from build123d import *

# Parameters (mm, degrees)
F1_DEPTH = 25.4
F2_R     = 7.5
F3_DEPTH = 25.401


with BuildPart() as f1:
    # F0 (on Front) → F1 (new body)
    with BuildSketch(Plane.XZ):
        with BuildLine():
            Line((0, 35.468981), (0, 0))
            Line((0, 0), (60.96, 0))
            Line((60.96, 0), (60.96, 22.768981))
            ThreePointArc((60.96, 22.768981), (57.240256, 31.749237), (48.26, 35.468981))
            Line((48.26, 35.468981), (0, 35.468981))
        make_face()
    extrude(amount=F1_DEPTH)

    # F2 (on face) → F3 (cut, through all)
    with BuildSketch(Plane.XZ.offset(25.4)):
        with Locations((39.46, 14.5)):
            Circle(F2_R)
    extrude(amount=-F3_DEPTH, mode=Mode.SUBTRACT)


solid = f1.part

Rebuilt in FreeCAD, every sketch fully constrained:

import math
import FreeCAD as App
import Part
import Sketcher
Q = App.Units.Quantity

doc = App.newDocument("Part")
body = doc.addObject("PartDesign::Body", "Body")

sketch1 = body.newObject("Sketcher::SketchObject", "Sketch")
sketch1.AttachmentSupport = (doc.getObject("XZ_Plane"), [""])
sketch1.MapMode = "FlatFace"
sketch1.addGeometry([
    Part.LineSegment(App.Vector(0, 35, 0), App.Vector(0, 0, 0)),
    Part.LineSegment(App.Vector(0, 0, 0), App.Vector(61, 0, 0)),
    Part.LineSegment(App.Vector(61, 0, 0), App.Vector(61, 23, 0)),
    Part.ArcOfCircle(Part.Circle(App.Vector(48, 23, 0), App.Vector(0, 0, 1), 13), math.radians(0), math.radians(90)),
    Part.LineSegment(App.Vector(48, 35, 0), App.Vector(0, 35, 0)),
], False)
sketch1.addConstraint([
    Sketcher.Constraint("Coincident", 0, 2, 1, 1),
    Sketcher.Constraint("Coincident", 1, 2, 2, 1),
    Sketcher.Constraint("Tangent", 2, 2, 3, 1),
    Sketcher.Constraint("Tangent", 3, 2, 4, 1),
    Sketcher.Constraint("Coincident", 4, 2, 0, 1),
    Sketcher.Constraint("Vertical", 0),
    Sketcher.Constraint("Horizontal", 1),
    Sketcher.Constraint("Vertical", 2),
    Sketcher.Constraint("Horizontal", 4),
    Sketcher.Constraint("Coincident", 0, 2, -1, 1),
    Sketcher.Constraint("Radius", 3, Q("0.5 in")),
    Sketcher.Constraint("DistanceX", 1, 1, 1, 2, Q("2.4 in")),
    Sketcher.Constraint("DistanceY", 0, 2, 0, 1, Q("35.468981 mm")),
])
pad1 = body.newObject("PartDesign::Pad", "Pad")
pad1.Profile = sketch1
pad1.Length = Q("1 in")

sketch2 = body.newObject("Sketcher::SketchObject", "Sketch001")
sketch2.AttachmentSupport = (doc.getObject("XZ_Plane"), [""])
sketch2.MapMode = "FlatFace"
sketch2.AttachmentOffset = App.Placement(App.Vector(0, 0, 1 * 25.4), App.Rotation())
sketch2.addGeometry(Part.Circle(App.Vector(39, 14, 0), App.Vector(0, 0, 1), 8), False)
sketch2.addConstraint([
    Sketcher.Constraint("Diameter", 0, Q("15 mm")),
    Sketcher.Constraint("DistanceX", -1, 1, 0, 3, Q("39.46 mm")),
    Sketcher.Constraint("DistanceY", -1, 1, 0, 3, Q("14.5 mm")),
])
pocket1 = body.newObject("PartDesign::Pocket", "Pocket")
pocket1.Profile = sketch2
pocket1.Type = "ThroughAll"

doc.recompute()
